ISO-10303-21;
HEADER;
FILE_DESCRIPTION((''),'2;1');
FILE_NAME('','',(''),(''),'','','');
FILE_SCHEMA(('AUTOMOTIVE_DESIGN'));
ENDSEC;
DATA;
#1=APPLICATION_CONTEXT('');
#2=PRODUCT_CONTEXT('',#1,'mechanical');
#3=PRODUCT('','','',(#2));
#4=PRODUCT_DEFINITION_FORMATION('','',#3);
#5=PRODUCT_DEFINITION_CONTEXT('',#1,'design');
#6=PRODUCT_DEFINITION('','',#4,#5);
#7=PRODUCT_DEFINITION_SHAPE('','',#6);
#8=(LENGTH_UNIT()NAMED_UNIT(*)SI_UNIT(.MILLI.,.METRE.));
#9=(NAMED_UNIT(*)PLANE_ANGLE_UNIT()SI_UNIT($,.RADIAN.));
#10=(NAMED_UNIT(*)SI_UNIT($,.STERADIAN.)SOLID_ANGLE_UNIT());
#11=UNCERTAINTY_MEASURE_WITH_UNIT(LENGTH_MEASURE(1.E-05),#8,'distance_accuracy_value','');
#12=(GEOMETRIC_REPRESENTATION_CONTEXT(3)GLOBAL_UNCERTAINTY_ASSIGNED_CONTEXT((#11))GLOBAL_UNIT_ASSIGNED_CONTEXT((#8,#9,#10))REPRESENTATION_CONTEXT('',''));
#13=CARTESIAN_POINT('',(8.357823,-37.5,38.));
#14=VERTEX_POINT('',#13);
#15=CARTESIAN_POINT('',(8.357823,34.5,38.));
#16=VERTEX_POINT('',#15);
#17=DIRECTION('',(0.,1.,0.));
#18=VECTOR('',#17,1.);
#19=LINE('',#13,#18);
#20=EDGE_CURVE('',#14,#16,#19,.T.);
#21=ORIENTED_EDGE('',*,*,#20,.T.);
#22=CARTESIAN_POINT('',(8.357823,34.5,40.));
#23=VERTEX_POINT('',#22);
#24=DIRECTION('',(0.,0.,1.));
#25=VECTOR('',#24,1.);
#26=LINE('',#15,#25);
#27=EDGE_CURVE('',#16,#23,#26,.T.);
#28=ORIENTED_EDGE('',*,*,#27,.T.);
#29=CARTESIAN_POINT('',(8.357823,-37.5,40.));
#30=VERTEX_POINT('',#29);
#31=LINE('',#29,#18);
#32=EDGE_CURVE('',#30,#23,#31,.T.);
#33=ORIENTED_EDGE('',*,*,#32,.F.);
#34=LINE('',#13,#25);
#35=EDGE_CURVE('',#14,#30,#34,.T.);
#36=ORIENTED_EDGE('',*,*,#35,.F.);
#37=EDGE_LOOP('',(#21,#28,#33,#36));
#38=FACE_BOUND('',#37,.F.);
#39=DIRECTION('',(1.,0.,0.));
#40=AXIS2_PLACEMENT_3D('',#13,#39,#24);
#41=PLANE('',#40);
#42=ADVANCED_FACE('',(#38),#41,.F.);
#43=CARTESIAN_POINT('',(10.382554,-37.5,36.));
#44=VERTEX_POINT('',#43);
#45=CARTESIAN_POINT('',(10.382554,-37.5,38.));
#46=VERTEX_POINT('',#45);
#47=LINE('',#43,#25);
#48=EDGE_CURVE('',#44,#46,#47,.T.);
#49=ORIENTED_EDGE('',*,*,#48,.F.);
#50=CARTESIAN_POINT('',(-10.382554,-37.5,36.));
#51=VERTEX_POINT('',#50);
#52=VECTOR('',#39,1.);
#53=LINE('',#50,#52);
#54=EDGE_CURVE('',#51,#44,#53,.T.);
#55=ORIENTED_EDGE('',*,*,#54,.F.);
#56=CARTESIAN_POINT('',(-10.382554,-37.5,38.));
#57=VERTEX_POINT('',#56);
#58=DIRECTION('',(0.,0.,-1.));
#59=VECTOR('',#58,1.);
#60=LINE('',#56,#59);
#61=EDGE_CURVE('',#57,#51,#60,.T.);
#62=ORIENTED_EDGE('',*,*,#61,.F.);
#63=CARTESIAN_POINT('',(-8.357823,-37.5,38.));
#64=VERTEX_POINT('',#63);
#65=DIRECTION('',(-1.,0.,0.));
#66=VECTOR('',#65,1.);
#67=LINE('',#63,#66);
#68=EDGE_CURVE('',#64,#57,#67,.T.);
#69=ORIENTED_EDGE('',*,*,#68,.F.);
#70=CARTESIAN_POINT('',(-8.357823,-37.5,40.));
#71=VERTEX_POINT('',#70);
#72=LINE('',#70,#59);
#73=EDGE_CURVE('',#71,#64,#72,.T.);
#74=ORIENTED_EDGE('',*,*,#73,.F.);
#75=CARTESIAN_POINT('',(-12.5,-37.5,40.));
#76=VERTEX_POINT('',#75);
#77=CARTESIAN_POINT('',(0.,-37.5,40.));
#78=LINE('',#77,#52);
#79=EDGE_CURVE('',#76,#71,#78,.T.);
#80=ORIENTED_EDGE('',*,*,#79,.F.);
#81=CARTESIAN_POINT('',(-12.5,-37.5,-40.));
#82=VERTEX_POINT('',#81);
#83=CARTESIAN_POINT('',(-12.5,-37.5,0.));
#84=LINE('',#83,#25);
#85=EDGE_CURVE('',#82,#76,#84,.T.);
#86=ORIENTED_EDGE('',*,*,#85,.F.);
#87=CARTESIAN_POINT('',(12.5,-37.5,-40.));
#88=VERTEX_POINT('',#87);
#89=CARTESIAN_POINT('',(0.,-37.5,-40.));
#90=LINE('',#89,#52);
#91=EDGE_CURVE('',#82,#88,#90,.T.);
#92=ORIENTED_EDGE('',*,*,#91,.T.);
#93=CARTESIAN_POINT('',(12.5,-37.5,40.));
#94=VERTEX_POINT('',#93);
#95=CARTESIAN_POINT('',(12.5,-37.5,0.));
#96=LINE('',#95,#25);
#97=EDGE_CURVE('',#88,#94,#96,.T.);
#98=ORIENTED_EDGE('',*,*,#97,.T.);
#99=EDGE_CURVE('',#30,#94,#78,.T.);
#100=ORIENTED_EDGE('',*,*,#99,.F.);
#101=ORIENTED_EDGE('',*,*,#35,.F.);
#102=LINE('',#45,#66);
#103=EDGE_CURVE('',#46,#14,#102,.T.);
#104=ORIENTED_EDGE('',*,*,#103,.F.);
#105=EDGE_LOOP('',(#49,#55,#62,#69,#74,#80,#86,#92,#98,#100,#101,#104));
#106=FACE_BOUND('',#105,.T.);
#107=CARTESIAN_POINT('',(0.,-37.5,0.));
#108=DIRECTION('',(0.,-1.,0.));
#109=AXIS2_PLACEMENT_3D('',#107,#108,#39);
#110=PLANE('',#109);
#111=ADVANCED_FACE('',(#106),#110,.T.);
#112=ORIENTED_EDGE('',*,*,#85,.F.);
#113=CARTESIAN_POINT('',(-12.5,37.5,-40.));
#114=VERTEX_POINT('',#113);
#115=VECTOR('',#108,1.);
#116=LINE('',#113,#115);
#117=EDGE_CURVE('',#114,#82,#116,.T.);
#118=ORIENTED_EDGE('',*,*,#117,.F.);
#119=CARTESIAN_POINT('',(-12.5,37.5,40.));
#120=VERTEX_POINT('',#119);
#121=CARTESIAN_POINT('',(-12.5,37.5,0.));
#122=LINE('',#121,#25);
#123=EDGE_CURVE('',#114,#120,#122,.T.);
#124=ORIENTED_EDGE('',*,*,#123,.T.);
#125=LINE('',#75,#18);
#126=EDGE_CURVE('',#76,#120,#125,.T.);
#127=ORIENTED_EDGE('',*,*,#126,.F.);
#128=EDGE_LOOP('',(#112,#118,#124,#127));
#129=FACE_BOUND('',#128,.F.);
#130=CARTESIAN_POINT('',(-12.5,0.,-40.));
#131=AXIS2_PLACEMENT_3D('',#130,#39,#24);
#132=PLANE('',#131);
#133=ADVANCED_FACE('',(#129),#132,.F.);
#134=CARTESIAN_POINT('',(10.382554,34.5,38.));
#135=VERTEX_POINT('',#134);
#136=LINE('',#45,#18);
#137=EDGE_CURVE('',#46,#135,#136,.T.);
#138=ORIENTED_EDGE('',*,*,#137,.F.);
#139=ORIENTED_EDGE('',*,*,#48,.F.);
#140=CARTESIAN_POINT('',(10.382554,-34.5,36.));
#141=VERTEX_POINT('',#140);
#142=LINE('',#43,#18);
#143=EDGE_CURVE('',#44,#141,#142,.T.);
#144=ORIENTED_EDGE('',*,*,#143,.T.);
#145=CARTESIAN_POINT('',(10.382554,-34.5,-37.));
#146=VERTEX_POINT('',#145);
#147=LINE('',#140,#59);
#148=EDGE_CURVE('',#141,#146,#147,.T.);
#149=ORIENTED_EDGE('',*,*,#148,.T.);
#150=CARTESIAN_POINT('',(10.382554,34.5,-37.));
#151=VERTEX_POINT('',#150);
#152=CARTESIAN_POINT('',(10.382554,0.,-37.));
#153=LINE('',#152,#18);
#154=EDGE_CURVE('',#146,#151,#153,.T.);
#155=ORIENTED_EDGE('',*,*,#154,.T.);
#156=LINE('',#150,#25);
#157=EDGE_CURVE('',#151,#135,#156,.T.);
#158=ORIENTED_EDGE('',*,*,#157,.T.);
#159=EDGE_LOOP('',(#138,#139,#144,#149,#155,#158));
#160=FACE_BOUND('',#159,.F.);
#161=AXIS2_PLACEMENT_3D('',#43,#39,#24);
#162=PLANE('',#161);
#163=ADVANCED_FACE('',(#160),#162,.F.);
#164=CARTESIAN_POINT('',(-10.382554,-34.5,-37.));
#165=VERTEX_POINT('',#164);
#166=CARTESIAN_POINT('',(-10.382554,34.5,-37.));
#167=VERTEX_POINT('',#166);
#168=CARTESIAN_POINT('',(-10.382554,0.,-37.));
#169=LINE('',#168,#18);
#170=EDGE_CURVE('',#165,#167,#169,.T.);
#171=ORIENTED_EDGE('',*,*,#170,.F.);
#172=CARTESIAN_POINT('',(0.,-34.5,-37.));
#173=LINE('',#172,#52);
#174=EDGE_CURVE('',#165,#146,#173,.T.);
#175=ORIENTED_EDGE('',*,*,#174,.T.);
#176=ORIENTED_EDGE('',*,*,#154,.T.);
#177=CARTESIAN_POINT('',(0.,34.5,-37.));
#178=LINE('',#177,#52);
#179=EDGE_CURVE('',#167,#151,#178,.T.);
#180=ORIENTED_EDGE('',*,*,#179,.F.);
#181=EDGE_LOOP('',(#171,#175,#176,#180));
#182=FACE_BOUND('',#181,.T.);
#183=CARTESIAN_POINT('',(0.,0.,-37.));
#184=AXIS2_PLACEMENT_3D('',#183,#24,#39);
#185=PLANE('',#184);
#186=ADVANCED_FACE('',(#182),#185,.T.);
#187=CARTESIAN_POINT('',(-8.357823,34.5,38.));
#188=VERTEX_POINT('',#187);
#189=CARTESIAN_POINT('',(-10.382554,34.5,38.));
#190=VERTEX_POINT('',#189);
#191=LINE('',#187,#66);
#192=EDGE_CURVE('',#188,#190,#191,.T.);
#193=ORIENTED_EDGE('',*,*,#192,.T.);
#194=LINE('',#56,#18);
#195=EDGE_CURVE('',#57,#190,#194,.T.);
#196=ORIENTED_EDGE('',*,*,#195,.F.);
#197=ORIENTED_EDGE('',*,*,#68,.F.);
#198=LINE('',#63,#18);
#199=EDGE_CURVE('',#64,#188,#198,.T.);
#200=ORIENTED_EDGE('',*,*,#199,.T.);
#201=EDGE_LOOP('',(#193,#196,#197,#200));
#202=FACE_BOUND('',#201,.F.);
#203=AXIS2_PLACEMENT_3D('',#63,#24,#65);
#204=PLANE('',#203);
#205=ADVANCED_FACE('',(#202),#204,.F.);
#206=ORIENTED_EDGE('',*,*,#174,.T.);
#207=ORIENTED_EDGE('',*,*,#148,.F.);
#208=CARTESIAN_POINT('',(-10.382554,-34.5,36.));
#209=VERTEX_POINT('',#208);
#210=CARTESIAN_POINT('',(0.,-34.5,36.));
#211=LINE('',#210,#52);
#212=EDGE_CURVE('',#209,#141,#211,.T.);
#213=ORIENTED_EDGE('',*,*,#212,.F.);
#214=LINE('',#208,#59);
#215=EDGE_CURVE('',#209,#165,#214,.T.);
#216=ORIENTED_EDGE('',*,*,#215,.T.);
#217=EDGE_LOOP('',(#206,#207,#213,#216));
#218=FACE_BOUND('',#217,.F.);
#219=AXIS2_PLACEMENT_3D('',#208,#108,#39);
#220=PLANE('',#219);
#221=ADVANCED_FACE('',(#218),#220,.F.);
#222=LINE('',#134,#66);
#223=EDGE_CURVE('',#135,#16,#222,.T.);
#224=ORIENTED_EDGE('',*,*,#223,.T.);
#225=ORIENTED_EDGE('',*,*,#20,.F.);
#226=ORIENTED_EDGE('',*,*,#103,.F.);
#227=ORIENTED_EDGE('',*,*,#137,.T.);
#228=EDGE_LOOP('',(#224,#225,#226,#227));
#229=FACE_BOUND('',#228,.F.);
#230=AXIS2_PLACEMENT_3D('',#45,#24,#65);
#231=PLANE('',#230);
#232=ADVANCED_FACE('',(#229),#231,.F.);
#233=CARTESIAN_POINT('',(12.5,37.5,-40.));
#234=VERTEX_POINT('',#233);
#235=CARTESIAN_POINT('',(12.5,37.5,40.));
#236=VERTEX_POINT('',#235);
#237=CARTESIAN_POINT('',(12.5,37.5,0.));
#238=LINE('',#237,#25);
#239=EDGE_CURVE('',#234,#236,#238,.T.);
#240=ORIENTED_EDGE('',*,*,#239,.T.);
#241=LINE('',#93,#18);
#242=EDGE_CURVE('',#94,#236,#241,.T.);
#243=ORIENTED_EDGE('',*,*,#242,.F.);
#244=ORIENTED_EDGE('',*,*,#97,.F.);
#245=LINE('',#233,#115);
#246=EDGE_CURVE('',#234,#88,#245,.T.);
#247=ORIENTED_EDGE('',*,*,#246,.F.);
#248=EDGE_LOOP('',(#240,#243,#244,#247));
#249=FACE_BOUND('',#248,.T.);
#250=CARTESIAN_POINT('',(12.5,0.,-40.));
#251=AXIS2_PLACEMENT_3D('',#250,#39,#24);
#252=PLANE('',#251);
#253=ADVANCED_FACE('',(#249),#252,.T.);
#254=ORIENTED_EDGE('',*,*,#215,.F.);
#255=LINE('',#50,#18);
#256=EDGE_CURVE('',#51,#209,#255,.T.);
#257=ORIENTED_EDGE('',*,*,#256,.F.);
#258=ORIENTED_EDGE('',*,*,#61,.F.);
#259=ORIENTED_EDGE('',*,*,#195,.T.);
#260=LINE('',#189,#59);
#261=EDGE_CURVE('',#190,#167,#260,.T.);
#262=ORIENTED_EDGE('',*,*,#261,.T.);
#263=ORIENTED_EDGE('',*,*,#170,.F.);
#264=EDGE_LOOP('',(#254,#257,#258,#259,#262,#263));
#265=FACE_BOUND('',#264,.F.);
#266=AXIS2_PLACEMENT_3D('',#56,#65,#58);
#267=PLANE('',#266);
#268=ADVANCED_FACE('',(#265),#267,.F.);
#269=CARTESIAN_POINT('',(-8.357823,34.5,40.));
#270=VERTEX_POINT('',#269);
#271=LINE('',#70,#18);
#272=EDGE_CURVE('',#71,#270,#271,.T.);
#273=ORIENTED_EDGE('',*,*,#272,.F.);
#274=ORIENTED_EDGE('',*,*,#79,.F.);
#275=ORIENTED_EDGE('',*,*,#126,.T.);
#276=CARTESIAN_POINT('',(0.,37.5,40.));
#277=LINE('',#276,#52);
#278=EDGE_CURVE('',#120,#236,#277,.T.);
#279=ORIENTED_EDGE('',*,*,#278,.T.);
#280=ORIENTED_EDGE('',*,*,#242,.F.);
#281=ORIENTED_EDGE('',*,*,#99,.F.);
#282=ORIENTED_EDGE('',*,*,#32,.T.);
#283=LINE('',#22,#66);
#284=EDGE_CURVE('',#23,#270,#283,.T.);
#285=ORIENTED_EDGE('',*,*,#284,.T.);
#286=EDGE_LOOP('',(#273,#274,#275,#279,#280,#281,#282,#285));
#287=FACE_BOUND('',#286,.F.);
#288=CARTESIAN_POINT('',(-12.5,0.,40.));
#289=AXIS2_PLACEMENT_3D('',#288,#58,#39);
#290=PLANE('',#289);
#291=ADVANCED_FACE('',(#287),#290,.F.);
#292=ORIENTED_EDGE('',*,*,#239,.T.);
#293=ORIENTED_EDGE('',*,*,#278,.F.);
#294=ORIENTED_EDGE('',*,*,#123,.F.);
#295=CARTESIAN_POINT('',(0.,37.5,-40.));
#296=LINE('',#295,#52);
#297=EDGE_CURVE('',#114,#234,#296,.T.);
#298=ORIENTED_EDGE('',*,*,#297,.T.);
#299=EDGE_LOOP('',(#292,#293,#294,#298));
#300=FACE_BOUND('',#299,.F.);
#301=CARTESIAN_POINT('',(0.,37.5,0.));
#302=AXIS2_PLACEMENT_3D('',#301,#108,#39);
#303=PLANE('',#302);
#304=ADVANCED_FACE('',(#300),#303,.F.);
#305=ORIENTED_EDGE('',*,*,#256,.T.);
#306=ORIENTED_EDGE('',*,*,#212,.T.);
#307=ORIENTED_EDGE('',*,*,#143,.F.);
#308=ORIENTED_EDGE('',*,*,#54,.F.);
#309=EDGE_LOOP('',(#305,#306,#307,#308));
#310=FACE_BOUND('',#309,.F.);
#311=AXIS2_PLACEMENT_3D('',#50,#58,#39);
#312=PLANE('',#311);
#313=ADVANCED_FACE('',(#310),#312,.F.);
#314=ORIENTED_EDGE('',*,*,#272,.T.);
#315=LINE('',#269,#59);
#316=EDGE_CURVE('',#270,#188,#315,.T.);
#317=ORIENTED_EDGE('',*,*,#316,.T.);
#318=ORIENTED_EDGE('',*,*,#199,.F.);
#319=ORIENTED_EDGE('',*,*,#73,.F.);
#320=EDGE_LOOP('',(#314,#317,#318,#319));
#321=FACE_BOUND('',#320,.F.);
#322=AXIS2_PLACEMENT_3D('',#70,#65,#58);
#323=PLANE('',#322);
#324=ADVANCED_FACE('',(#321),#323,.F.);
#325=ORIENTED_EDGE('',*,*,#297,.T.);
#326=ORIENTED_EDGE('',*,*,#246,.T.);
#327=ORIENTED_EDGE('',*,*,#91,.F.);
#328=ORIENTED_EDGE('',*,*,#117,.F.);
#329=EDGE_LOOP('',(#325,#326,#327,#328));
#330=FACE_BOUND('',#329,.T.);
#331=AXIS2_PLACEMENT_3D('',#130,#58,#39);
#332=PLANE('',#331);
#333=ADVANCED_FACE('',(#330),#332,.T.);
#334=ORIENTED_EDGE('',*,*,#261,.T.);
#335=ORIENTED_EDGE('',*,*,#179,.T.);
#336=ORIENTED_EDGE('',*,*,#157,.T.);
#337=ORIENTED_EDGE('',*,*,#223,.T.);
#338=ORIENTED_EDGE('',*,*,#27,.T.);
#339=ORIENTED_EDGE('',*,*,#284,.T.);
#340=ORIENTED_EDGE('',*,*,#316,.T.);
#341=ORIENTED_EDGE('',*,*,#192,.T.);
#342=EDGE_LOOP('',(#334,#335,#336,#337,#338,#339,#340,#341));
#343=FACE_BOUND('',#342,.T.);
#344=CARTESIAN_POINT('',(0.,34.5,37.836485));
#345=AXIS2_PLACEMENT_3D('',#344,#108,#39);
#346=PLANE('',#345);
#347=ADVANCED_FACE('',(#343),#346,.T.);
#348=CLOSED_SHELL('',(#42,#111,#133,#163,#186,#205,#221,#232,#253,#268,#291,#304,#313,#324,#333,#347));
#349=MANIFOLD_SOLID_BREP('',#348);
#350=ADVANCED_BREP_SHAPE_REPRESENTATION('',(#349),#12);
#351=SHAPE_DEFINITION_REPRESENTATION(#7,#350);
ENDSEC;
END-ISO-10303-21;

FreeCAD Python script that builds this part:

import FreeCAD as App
import Part
import Sketcher

V = App.Vector
Q = App.Units.Quantity


def add_polygon(sketch, points):
    """Adds a closed chain of lines whose ends are joined by coincident constraints."""
    first, n = sketch.GeometryCount, len(points)
    for a, b in zip(points, points[1:] + points[:1]):
        sketch.addGeometry(Part.LineSegment(App.Vector(*a, 0), App.Vector(*b, 0)), False)
    for i in range(n):
        sketch.addConstraint(Sketcher.Constraint("Coincident", first + i, 2, first + (i + 1) % n, 1))

doc = App.newDocument("Part")
body = doc.addObject("PartDesign::Body", "Body")

# Sketch on XZ plane
sketch1 = body.newObject("Sketcher::SketchObject", "Sketch")
sketch1.AttachmentSupport = (doc.getObject("XZ_Plane"), [""])
sketch1.MapMode = "FlatFace"
add_polygon(sketch1, [(-12.5, 40), (-12.5, -40), (12.5, -40), (12.5, 40)])  # lines 0-3
sketch1.addConstraint([
    Sketcher.Constraint("Vertical", 0),
    Sketcher.Constraint("Horizontal", 1),
    Sketcher.Constraint("Vertical", 2),
    Sketcher.Constraint("Horizontal", 3),
    Sketcher.Constraint("Symmetric", 0, 2, 2, 2, -1, 1),
    Sketcher.Constraint("DistanceX", 1, 1, 1, 2, Q("25 mm")),
    Sketcher.Constraint("DistanceY", 0, 2, 0, 1, Q("80 mm")),
])
pad1 = body.newObject("PartDesign::Pad", "Pad")
pad1.Profile = sketch1
pad1.Length = 75
pad1.Midplane = True

# Sketch on XZ plane
sketch2 = body.newObject("Sketcher::SketchObject", "Sketch001")
sketch2.AttachmentSupport = (doc.getObject("XZ_Plane"), [""])
sketch2.MapMode = "FlatFace"
sketch2.AttachmentOffset = App.Placement(V(0, 0, 37.5), App.Rotation())
add_polygon(sketch2, [(8.357823, 38), (8.357823, 40), (-8.357823, 40), (-8.357823, 38), (-10.382554, 38), (-10.382554, 36), (10.382554, 36), (10.382554, 38)])  # lines 0-7
sketch2.addConstraint([
    Sketcher.Constraint("Vertical", 0),
    Sketcher.Constraint("Horizontal", 1),
    Sketcher.Constraint("Vertical", 2),
    Sketcher.Constraint("Horizontal", 3),
    Sketcher.Constraint("Vertical", 4),
    Sketcher.Constraint("Horizontal", 5),
    Sketcher.Constraint("Vertical", 6),
    Sketcher.Constraint("Horizontal", 7),
    Sketcher.Constraint("Symmetric", 3, 2, 6, 2, -2),
    Sketcher.Constraint("Equal", 3, 7),
    Sketcher.Constraint("Equal", 2, 4),
    Sketcher.Constraint("DistanceY", 0, 1, 0, 2, Q("2 mm")),
    Sketcher.Constraint("DistanceY", -1, 1, 0, 2, Q("40 mm")),
    Sketcher.Constraint("DistanceX", 3, 2, 3, 1, Q("2.024731 mm")),
    Sketcher.Constraint("DistanceX", 5, 1, 5, 2, Q("20.765108 mm")),
])
pocket1 = body.newObject("PartDesign::Pocket", "Pocket")
pocket1.Profile = sketch2
pocket1.Length = 72

# Sketch on XY plane
sketch3 = body.newObject("Sketcher::SketchObject", "Sketch002")
sketch3.AttachmentSupport = (doc.getObject("XY_Plane"), [""])
sketch3.MapMode = "FlatFace"
sketch3.AttachmentOffset = App.Placement(V(0, 0, 36), App.Rotation())
add_polygon(sketch3, [(-10.382554, 34.5), (-10.382554, -34.5), (10.382554, -34.5), (10.382554, 34.5)])  # lines 0-3
sketch3.addConstraint([
    Sketcher.Constraint("Vertical", 0),
    Sketcher.Constraint("Horizontal", 1),
    Sketcher.Constraint("Vertical", 2),
    Sketcher.Constraint("Horizontal", 3),
    Sketcher.Constraint("Symmetric", 0, 2, 2, 2, -1, 1),
    Sketcher.Constraint("DistanceY", 0, 2, 0, 1, Q("69 mm")),
    Sketcher.Constraint("DistanceX", 1, 1, 1, 2, Q("20.765108 mm")),
])
pocket2 = body.newObject("PartDesign::Pocket", "Pocket001")
pocket2.Profile = sketch3
pocket2.Length = 73

doc.recompute()
